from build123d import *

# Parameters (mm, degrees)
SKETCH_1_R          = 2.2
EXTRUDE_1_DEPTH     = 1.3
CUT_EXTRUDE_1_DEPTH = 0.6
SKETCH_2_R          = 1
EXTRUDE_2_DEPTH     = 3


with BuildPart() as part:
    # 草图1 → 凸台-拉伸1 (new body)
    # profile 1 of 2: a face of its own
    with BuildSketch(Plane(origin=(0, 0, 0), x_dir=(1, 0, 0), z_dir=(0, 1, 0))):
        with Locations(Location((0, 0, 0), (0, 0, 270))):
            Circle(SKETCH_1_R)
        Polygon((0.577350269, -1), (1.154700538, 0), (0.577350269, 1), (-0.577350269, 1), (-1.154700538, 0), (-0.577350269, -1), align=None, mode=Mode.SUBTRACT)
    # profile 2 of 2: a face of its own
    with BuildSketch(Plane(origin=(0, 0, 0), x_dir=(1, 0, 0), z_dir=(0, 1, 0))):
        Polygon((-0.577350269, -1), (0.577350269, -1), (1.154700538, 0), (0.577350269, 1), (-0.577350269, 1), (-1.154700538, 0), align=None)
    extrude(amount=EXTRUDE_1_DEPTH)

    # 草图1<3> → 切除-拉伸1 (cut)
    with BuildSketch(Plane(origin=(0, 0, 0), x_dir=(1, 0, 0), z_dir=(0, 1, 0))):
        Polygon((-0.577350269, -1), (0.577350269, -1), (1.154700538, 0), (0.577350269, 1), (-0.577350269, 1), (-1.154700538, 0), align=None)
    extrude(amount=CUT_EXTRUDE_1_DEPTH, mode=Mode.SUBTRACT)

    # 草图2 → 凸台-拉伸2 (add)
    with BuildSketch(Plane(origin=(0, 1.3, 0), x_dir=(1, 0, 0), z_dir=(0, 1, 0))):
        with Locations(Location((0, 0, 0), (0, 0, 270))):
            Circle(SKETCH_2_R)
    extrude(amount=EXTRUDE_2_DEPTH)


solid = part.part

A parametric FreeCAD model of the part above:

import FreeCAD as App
import Part
import Sketcher
Q = App.Units.Quantity


def add_polygon(sketch, points):
    """Adds a closed chain of lines whose ends are joined by coincident constraints."""
    first, n = sketch.GeometryCount, len(points)
    for a, b in zip(points, points[1:] + points[:1]):
        sketch.addGeometry(Part.LineSegment(App.Vector(*a, 0), App.Vector(*b, 0)), False)
    for i in range(n):
        sketch.addConstraint(Sketcher.Constraint("Coincident", first + i, 2, first + (i + 1) % n, 1))

doc = App.newDocument("Part")
body = doc.addObject("PartDesign::Body", "Body")

# Sketch on XZ plane
sketch1 = doc.addObject("Sketcher::SketchObject", "Sketch")
body.addObject(sketch1)
sketch1.AttachmentSupport = (doc.XZ_Plane, [""])
sketch1.MapMode = "FlatFace"
sketch1.addGeometry(Part.Circle(App.Vector(0, 0, 0), App.Vector(0, 0, 1), 2.2), False)
sketch1.addConstraint(Sketcher.Constraint("Coincident", 0, 3, -1, 1))
sketch1.addConstraint(Sketcher.Constraint("Diameter", 0, Q("4.4 mm")))
pad1 = doc.addObject("PartDesign::Pad", "Pad")
body.addObject(pad1)
pad1.Profile = sketch1
pad1.Length = 1.3
pad1.Reversed = True

# Sketch on XZ plane
sketch2 = doc.addObject("Sketcher::SketchObject", "Sketch001")
body.addObject(sketch2)
sketch2.AttachmentSupport = (doc.XZ_Plane, [""])
sketch2.MapMode = "FlatFace"
add_polygon(sketch2, [(-0.6, 1), (0.6, 1), (1.2, 0), (0.6, -1), (-0.6, -1), (-1.2, 0)])  # lines 0-5
sketch2.addConstraint(Sketcher.Constraint("Horizontal", 0))
sketch2.addConstraint(Sketcher.Constraint("Horizontal", 3))
sketch2.addConstraint(Sketcher.Constraint("Symmetric", 0, 2, 3, 2, -1, 1))
sketch2.addConstraint(Sketcher.Constraint("Symmetric", 1, 2, 4, 2, -1, 1))
sketch2.addConstraint(Sketcher.Constraint("PointOnObject", 1, 2, -1))
sketch2.addConstraint(Sketcher.Constraint("Parallel", 2, 5))
sketch2.addConstraint(Sketcher.Constraint("Vertical", 0, 2, 2, 2))
sketch2.addConstraint(Sketcher.Constraint("Angle", 1, Q("-60 deg")))
sketch2.addConstraint(Sketcher.Constraint("DistanceY", -1, 1, 0, 2, Q("1 mm")))
sketch2.addConstraint(Sketcher.Constraint("DistanceX", 0, 1, 0, 2, Q("1.154701 mm")))
pocket1 = doc.addObject("PartDesign::Pocket", "Pocket")
body.addObject(pocket1)
pocket1.Profile = sketch2
pocket1.Length = 0.6

# Sketch on XZ plane
sketch3 = doc.addObject("Sketcher::SketchObject", "Sketch002")
body.addObject(sketch3)
sketch3.AttachmentSupport = (doc.XZ_Plane, [""])
sketch3.MapMode = "FlatFace"
sketch3.AttachmentOffset = App.Placement(App.Vector(0, 0, -1.3), App.Rotation())
sketch3.addGeometry(Part.Circle(App.Vector(0, 0, 0), App.Vector(0, 0, 1), 1), False)
sketch3.addConstraint(Sketcher.Constraint("Coincident", 0, 3, -1, 1))
sketch3.addConstraint(Sketcher.Constraint("Diameter", 0, Q("2 mm")))
pad2 = doc.addObject("PartDesign::Pad", "Pad001")
body.addObject(pad2)
pad2.Profile = sketch3
pad2.Length = 3
pad2.Reversed = True

doc.recompute()
